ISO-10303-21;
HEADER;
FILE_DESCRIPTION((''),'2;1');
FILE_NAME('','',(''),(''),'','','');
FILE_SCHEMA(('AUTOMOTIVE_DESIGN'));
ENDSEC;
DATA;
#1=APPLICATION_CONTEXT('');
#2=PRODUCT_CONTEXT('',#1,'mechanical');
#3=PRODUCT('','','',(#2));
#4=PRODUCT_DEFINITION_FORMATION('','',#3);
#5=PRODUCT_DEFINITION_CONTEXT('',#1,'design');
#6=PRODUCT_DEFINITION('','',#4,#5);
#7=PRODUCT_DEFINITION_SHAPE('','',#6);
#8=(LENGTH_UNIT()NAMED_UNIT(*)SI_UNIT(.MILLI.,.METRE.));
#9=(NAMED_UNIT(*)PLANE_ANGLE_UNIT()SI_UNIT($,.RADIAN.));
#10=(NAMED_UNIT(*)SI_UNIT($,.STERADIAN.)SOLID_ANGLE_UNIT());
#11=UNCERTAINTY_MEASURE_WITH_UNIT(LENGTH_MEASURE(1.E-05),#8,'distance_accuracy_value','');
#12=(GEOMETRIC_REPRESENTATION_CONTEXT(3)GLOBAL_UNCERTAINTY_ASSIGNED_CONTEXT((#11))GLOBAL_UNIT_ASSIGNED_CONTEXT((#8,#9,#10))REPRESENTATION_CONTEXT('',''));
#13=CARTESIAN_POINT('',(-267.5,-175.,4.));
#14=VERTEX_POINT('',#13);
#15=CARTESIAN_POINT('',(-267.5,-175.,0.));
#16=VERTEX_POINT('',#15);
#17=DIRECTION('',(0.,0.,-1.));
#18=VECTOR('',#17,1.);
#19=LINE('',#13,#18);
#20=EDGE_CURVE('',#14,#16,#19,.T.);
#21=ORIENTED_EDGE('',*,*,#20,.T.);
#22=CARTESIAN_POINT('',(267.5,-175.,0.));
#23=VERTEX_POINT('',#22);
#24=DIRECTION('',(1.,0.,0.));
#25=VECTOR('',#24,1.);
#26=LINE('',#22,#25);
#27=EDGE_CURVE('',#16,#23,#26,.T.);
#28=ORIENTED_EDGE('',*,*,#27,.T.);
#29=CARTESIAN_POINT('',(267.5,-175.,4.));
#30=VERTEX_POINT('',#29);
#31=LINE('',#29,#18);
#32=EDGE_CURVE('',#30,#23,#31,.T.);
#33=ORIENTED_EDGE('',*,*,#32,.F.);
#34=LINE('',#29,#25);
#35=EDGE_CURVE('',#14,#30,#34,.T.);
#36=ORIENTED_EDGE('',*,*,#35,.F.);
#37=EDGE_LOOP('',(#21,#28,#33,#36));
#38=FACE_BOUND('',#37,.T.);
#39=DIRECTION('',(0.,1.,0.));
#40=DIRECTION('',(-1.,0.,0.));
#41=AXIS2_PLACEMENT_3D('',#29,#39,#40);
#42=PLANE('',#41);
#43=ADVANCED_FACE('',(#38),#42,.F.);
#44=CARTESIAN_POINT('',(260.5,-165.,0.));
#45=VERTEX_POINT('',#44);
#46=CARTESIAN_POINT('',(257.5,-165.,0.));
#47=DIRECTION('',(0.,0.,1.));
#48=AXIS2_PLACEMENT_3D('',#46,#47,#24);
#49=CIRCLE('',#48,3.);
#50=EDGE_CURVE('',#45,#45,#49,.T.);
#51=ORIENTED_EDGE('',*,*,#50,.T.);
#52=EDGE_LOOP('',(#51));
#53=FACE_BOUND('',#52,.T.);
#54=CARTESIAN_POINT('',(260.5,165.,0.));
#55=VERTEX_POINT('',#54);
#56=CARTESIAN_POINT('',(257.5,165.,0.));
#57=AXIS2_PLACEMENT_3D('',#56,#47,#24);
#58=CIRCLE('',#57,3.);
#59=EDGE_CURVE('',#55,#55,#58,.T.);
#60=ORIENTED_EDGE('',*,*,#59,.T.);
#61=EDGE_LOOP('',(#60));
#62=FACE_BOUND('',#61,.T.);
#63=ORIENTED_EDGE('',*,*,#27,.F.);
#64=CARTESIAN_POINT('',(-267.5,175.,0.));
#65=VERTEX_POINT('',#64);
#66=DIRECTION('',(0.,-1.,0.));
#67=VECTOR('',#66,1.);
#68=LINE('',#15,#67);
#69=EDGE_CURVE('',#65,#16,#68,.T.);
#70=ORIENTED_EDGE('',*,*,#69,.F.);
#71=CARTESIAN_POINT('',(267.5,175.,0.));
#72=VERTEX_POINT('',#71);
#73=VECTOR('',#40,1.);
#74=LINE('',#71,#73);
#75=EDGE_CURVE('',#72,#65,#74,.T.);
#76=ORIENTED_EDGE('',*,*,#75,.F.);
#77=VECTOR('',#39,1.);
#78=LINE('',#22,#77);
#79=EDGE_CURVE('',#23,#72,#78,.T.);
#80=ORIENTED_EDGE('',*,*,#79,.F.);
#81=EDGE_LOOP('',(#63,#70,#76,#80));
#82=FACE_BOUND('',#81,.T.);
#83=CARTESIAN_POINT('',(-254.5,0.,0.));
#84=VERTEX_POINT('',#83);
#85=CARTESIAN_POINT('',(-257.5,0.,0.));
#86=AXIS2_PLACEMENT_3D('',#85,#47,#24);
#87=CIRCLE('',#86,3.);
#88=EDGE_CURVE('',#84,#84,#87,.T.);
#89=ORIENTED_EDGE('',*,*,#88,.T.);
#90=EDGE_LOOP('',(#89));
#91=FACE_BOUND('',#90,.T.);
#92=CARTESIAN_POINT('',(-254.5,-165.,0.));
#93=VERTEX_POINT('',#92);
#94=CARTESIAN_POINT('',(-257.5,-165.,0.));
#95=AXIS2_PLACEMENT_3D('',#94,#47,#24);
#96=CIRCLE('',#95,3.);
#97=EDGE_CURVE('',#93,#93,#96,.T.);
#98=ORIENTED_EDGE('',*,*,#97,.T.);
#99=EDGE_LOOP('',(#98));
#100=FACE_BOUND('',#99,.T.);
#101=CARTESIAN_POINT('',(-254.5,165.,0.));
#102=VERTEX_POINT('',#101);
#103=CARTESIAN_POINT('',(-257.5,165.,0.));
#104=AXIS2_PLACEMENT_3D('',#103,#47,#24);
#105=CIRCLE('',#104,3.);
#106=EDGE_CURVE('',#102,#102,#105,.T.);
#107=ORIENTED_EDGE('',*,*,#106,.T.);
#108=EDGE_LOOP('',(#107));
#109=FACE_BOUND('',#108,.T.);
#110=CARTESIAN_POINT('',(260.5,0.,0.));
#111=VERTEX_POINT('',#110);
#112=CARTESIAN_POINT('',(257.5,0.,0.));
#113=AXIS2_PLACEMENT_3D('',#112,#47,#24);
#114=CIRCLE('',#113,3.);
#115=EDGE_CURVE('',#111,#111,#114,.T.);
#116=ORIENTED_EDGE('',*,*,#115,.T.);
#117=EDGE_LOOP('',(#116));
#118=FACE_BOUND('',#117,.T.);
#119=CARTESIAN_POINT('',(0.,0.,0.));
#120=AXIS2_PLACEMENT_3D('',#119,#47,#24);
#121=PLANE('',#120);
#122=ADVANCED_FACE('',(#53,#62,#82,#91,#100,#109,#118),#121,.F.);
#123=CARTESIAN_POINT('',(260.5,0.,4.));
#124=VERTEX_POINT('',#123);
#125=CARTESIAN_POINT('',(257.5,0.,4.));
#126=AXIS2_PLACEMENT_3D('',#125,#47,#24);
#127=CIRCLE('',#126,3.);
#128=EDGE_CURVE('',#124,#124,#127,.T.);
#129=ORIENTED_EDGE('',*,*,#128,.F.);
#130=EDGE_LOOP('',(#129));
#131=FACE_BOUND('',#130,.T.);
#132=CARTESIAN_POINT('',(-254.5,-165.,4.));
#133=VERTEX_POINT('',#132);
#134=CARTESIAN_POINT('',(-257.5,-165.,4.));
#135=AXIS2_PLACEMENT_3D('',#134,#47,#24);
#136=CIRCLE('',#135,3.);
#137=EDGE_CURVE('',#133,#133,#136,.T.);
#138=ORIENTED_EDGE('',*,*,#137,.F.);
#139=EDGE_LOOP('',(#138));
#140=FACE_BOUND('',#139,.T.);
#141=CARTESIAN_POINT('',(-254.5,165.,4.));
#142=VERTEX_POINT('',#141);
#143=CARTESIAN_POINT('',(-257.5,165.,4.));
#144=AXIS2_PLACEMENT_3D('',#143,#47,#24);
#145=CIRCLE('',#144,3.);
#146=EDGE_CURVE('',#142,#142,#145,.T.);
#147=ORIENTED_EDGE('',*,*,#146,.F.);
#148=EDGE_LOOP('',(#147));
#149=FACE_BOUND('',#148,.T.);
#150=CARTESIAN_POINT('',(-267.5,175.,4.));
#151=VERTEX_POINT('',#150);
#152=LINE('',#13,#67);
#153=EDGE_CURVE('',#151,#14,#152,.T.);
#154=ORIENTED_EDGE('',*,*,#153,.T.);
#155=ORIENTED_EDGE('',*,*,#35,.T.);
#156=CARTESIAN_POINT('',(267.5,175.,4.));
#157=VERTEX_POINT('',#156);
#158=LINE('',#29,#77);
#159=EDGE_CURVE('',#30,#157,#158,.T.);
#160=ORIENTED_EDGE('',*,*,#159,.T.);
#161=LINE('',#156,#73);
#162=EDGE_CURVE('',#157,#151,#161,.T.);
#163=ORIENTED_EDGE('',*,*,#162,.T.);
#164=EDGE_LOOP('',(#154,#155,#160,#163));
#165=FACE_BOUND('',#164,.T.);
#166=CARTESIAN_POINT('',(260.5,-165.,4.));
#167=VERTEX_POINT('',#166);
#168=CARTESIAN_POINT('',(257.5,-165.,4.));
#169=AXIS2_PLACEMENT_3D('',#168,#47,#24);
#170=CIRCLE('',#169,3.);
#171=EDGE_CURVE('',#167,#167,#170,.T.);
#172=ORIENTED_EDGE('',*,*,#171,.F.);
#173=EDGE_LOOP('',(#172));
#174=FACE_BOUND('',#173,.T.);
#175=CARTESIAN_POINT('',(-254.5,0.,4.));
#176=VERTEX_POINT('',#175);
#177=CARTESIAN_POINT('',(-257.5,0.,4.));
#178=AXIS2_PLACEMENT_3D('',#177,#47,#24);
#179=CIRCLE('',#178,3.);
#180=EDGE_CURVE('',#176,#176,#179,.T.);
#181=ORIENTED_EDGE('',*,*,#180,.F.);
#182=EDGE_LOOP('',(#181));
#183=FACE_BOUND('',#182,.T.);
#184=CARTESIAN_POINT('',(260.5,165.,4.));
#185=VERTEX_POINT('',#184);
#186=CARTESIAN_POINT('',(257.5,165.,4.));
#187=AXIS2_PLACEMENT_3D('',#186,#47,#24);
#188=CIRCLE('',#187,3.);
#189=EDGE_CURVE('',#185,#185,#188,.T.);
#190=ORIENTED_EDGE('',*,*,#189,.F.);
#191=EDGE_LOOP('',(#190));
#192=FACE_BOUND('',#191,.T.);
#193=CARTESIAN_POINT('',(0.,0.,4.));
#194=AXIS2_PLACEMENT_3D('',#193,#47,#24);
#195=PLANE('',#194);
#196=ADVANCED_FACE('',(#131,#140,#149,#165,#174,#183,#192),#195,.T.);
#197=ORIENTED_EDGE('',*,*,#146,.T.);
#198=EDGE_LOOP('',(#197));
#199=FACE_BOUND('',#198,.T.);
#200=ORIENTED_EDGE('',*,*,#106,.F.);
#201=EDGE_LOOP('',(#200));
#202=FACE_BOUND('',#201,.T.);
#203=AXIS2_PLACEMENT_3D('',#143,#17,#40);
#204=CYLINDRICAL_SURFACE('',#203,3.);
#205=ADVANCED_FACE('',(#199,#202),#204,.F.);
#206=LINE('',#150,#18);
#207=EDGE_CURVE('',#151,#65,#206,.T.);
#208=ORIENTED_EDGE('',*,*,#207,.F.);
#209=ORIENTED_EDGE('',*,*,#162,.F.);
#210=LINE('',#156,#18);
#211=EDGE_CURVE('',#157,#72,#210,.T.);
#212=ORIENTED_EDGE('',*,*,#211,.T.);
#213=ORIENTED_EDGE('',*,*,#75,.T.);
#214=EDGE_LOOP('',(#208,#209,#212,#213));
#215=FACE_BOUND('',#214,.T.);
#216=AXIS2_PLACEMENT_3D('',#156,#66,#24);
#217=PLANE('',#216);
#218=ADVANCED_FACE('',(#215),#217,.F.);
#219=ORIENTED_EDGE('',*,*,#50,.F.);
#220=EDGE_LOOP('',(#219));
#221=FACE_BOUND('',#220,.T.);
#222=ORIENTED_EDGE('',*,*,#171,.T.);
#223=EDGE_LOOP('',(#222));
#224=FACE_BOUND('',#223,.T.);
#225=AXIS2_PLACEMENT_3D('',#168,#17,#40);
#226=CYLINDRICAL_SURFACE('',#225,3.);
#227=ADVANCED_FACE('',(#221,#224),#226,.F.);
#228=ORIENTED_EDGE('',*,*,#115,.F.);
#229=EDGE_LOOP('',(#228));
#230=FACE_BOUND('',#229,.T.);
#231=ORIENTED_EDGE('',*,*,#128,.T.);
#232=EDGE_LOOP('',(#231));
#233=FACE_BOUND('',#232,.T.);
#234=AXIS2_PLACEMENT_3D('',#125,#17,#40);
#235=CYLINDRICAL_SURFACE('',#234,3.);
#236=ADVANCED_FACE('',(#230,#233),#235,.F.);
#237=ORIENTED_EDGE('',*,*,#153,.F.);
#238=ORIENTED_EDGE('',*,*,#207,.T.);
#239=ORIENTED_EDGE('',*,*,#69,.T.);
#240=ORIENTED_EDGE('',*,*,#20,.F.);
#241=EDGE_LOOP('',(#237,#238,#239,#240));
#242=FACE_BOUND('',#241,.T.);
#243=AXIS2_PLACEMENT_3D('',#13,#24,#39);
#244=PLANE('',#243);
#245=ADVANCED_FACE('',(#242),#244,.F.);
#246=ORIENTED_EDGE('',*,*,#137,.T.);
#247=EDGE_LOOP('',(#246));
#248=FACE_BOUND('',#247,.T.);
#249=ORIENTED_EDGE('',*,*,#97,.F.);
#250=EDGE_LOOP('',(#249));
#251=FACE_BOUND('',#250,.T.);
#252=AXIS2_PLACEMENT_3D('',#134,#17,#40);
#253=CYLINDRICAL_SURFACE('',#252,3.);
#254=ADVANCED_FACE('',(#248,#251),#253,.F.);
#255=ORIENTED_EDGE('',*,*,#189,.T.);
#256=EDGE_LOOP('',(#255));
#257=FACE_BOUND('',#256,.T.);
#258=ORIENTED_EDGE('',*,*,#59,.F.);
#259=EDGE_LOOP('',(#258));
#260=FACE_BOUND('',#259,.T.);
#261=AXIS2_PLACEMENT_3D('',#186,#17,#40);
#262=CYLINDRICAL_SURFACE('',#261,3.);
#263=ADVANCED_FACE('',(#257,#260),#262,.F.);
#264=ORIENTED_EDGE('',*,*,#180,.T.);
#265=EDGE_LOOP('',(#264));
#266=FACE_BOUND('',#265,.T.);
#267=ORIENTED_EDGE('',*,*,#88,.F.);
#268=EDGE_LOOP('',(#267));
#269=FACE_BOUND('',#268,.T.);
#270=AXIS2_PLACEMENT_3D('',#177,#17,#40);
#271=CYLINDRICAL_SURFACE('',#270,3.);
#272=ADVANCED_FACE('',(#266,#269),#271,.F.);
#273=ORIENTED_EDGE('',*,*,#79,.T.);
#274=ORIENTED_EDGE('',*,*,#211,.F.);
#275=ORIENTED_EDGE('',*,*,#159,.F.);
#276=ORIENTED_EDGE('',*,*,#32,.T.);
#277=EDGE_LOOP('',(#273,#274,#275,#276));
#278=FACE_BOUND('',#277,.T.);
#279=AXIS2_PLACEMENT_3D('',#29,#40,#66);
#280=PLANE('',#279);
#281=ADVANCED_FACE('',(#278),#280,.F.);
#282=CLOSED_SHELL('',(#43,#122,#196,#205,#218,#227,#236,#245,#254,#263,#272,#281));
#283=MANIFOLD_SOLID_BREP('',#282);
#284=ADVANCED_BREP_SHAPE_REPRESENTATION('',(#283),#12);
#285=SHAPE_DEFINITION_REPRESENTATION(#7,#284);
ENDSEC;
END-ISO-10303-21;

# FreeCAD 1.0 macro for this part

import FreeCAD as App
import Part
import Sketcher

V = App.Vector


def add_polygon(sketch, points):
    """Adds a closed chain of lines whose ends are joined by coincident constraints."""
    first, n = sketch.GeometryCount, len(points)
    for a, b in zip(points, points[1:] + points[:1]):
        sketch.addGeometry(Part.LineSegment(App.Vector(*a, 0), App.Vector(*b, 0)), False)
    for i in range(n):
        sketch.addConstraint(Sketcher.Constraint("Coincident", first + i, 2, first + (i + 1) % n, 1))

doc = App.newDocument("Part")
params = doc.addObject("Spreadsheet::Sheet", "Params")
for row, (alias, value) in enumerate([
    ("sketch1_diameter", "6 mm"),
    ("sketch1_width", "535 mm"),
    ("sketch1_height", "350 mm"),
    ("pad1_length", "4 mm"),
], start=1):
    params.set(f"A{row}", alias)
    params.set(f"B{row}", "=" + value)
    params.setAlias(f"B{row}", alias)

body = doc.addObject("PartDesign::Body", "Body")

# Sketch on XY plane
sketch1 = body.newObject("Sketcher::SketchObject", "Sketch")
sketch1.AttachmentSupport = (doc.getObject("XY_Plane"), [""])
sketch1.MapMode = "FlatFace"
add_polygon(sketch1, [(-267.5, 175), (-267.5, -175), (267.5, -175), (267.5, 175)])  # lines 0-3
sketch1.addGeometry(Part.Circle(V(-257.5, -165, 0), V(0, 0, 1), 3), False)  # 4
sketch1.addGeometry(Part.Circle(V(257.5, -165, 0), V(0, 0, 1), 3), False)  # 5
sketch1.addGeometry(Part.Circle(V(-257.5, 0, 0), V(0, 0, 1), 3), False)  # 6
sketch1.addGeometry(Part.Circle(V(-257.5, 165, 0), V(0, 0, 1), 3), False)  # 7
sketch1.addGeometry(Part.Circle(V(257.5, 0, 0), V(0, 0, 1), 3), False)  # 8
sketch1.addGeometry(Part.Circle(V(257.5, 165, 0), V(0, 0, 1), 3), False)  # 9
sketch1.addConstraint(Sketcher.Constraint("Vertical", 0))
sketch1.addConstraint(Sketcher.Constraint("Horizontal", 1))
sketch1.addConstraint(Sketcher.Constraint("Vertical", 2))
sketch1.addConstraint(Sketcher.Constraint("Horizontal", 3))
sketch1.addConstraint(Sketcher.Constraint("Equal", 4, 5))
sketch1.addConstraint(Sketcher.Constraint("Equal", 5, 6))
sketch1.addConstraint(Sketcher.Constraint("Equal", 6, 7))
sketch1.addConstraint(Sketcher.Constraint("Equal", 7, 8))
sketch1.addConstraint(Sketcher.Constraint("Equal", 8, 9))
sketch1.addConstraint(Sketcher.Constraint("Symmetric", 5, 3, 7, 3, -1, 1))
sketch1.addConstraint(Sketcher.Constraint("Symmetric", 6, 3, 8, 3, -1, 1))
sketch1.addConstraint(Sketcher.Constraint("Symmetric", 4, 3, 9, 3, -1, 1))
sketch1.addConstraint(Sketcher.Constraint("Symmetric", 0, 2, 2, 2, -1, 1))
sketch1.addConstraint(Sketcher.Constraint("Symmetric", 4, 3, 5, 3, -2))
sketch1.addConstraint(Sketcher.Constraint("PointOnObject", 6, 3, -1))
sketch1.addConstraint(Sketcher.Constraint("Vertical", 4, 3, 6, 3))
sketch1.addConstraint(Sketcher.Constraint("Diameter", 4, 6.0))
sketch1.addConstraint(Sketcher.Constraint("DistanceX", 1, 1, 1, 2, 535.0))
sketch1.addConstraint(Sketcher.Constraint("DistanceY", 0, 2, 0, 1, 350.0))
sketch1.addConstraint(Sketcher.Constraint("DistanceY", 4, 3, -1, 1, 165.0))
sketch1.addConstraint(Sketcher.Constraint("DistanceX", 4, 3, 5, 3, 515.0))
sketch1.setExpression("Constraints[20]", "Params.sketch1_diameter")
sketch1.setExpression("Constraints[21]", "Params.sketch1_width")
sketch1.setExpression("Constraints[22]", "Params.sketch1_height")
pad1 = body.newObject("PartDesign::Pad", "Pad")
pad1.Profile = sketch1
pad1.setExpression("Length", "Params.pad1_length")

doc.recompute()
